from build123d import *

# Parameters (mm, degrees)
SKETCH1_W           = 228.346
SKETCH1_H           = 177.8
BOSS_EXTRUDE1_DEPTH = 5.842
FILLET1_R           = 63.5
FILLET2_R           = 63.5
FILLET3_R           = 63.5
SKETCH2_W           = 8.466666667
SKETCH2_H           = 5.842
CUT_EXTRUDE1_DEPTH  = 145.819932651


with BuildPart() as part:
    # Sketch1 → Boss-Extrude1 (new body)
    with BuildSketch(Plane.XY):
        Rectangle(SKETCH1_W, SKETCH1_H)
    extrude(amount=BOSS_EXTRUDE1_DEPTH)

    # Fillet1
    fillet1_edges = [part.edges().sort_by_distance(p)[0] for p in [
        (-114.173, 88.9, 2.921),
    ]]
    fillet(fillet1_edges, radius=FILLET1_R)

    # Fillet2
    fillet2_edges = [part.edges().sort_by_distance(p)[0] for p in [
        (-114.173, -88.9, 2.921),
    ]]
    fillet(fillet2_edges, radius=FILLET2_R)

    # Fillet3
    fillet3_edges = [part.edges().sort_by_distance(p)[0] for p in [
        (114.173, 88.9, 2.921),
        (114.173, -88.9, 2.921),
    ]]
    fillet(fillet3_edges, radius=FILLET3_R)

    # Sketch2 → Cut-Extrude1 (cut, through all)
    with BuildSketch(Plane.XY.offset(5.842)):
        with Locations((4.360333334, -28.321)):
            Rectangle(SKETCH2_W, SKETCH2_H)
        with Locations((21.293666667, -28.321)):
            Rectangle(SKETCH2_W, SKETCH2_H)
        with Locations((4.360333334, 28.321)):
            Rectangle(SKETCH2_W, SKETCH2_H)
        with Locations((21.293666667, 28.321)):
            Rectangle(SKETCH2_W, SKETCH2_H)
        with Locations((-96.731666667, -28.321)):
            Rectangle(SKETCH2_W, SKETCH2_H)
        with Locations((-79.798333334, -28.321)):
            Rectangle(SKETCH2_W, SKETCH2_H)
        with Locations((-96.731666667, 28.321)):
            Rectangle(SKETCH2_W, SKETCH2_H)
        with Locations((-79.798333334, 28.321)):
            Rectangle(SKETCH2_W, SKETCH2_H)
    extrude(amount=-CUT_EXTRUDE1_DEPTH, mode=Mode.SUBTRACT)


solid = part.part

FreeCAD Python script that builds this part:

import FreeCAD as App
import Part
import Sketcher

V = App.Vector
Q = App.Units.Quantity


def edges_at(feature, points):
    """Names of the edges that pass closest to the given points."""
    edges = feature.Shape.Edges
    near = lambda p: min(range(len(edges)), key=lambda i: edges[i].distToShape(Part.Vertex(*p))[0])
    return sorted({f"Edge{near(p) + 1}" for p in points})

doc = App.newDocument("Part")
body = doc.addObject("PartDesign::Body", "Body")

# Sketch on XY plane
sketch1 = doc.addObject("Sketcher::SketchObject", "Sketch")
body.addObject(sketch1)
sketch1.AttachmentSupport = (doc.XY_Plane, [""])
sketch1.MapMode = "FlatFace"
sketch1.addGeometry(Part.LineSegment(V(-114.173, 88.9, 0), V(-114.173, -88.9, 0)), False)
sketch1.addGeometry(Part.LineSegment(V(-114.173, -88.9, 0), V(114.173, -88.9, 0)), False)
sketch1.addGeometry(Part.LineSegment(V(114.173, -88.9, 0), V(114.173, 88.9, 0)), False)
sketch1.addGeometry(Part.LineSegment(V(114.173, 88.9, 0), V(-114.173, 88.9, 0)), False)
sketch1.addConstraint(Sketcher.Constraint("Coincident", 0, 2, 1, 1))
sketch1.addConstraint(Sketcher.Constraint("Coincident", 1, 2, 2, 1))
sketch1.addConstraint(Sketcher.Constraint("Coincident", 2, 2, 3, 1))
sketch1.addConstraint(Sketcher.Constraint("Coincident", 3, 2, 0, 1))
sketch1.addConstraint(Sketcher.Constraint("Vertical", 0))
sketch1.addConstraint(Sketcher.Constraint("Horizontal", 1))
sketch1.addConstraint(Sketcher.Constraint("Vertical", 2))
sketch1.addConstraint(Sketcher.Constraint("Horizontal", 3))
sketch1.addConstraint(Sketcher.Constraint("Symmetric", 0, 2, 2, 2, -1, 1))
sketch1.addConstraint(Sketcher.Constraint("DistanceY", 0, 2, 0, 1, Q("7 in")))
sketch1.addConstraint(Sketcher.Constraint("DistanceX", 1, 1, 1, 2, Q("8.99 in")))
pad1 = doc.addObject("PartDesign::Pad", "Pad")
body.addObject(pad1)
pad1.Profile = sketch1
pad1.Length = Q("0.23 in")
doc.recompute()

fillet = doc.addObject("PartDesign::Fillet", "Fillet")
body.addObject(fillet)
fillet.Base = (pad1, edges_at(pad1, [(-114.173, 88.9, 2.921)]))
fillet.Radius = Q("2.5 in")
doc.recompute()

fillet2 = doc.addObject("PartDesign::Fillet", "Fillet001")
body.addObject(fillet2)
fillet2.Base = (fillet, edges_at(fillet, [(-114.173, -88.9, 2.921)]))
fillet2.Radius = Q("2.5 in")
doc.recompute()

fillet3 = doc.addObject("PartDesign::Fillet", "Fillet002")
body.addObject(fillet3)
fillet3.Base = (fillet2, edges_at(fillet2, [(114.173, 88.9, 2.921), (114.173, -88.9, 2.921)]))
fillet3.Radius = Q("2.5 in")

# Sketch on XY plane
sketch2 = doc.addObject("Sketcher::SketchObject", "Sketch001")
body.addObject(sketch2)
sketch2.AttachmentSupport = (doc.XY_Plane, [""])
sketch2.MapMode = "FlatFace"
sketch2.AttachmentOffset = App.Placement(V(0, 0, 0.23 * 25.4), App.Rotation())
sketch2.addGeometry(Part.LineSegment(V(0.127, -25.4, 0), V(0.127, -31.242, 0)), False)
sketch2.addGeometry(Part.LineSegment(V(0.127, -31.242, 0), V(8.593667, -31.242, 0)), False)
sketch2.addGeometry(Part.LineSegment(V(8.593667, -31.242, 0), V(8.593667, -25.4, 0)), False)
sketch2.addGeometry(Part.LineSegment(V(8.593667, -25.4, 0), V(0.127, -25.4, 0)), False)
sketch2.addGeometry(Part.LineSegment(V(17.060333, -25.4, 0), V(17.060333, -31.242, 0)), False)
sketch2.addGeometry(Part.LineSegment(V(17.060333, -31.242, 0), V(25.527, -31.242, 0)), False)
sketch2.addGeometry(Part.LineSegment(V(25.527, -31.242, 0), V(25.527, -25.4, 0)), False)
sketch2.addGeometry(Part.LineSegment(V(25.527, -25.4, 0), V(17.060333, -25.4, 0)), False)
sketch2.addGeometry(Part.LineSegment(V(0.127, 31.242, 0), V(0.127, 25.4, 0)), False)
sketch2.addGeometry(Part.LineSegment(V(0.127, 25.4, 0), V(8.593667, 25.4, 0)), False)
sketch2.addGeometry(Part.LineSegment(V(8.593667, 25.4, 0), V(8.593667, 31.242, 0)), False)
sketch2.addGeometry(Part.LineSegment(V(8.593667, 31.242, 0), V(0.127, 31.242, 0)), False)
sketch2.addGeometry(Part.LineSegment(V(17.060333, 31.242, 0), V(17.060333, 25.4, 0)), False)
sketch2.addGeometry(Part.LineSegment(V(17.060333, 25.4, 0), V(25.527, 25.4, 0)), False)
sketch2.addGeometry(Part.LineSegment(V(25.527, 25.4, 0), V(25.527, 31.242, 0)), False)
sketch2.addGeometry(Part.LineSegment(V(25.527, 31.242, 0), V(17.060333, 31.242, 0)), False)
sketch2.addGeometry(Part.LineSegment(V(-100.965, -25.4, 0), V(-100.965, -31.242, 0)), False)
sketch2.addGeometry(Part.LineSegment(V(-100.965, -31.242, 0), V(-92.498333, -31.242, 0)), False)
sketch2.addGeometry(Part.LineSegment(V(-92.498333, -31.242, 0), V(-92.498333, -25.4, 0)), False)
sketch2.addGeometry(Part.LineSegment(V(-92.498333, -25.4, 0), V(-100.965, -25.4, 0)), False)
sketch2.addGeometry(Part.LineSegment(V(-84.031667, -25.4, 0), V(-84.031667, -31.242, 0)), False)
sketch2.addGeometry(Part.LineSegment(V(-84.031667, -31.242, 0), V(-75.565, -31.242, 0)), False)
sketch2.addGeometry(Part.LineSegment(V(-75.565, -31.242, 0), V(-75.565, -25.4, 0)), False)
sketch2.addGeometry(Part.LineSegment(V(-75.565, -25.4, 0), V(-84.031667, -25.4, 0)), False)
sketch2.addGeometry(Part.LineSegment(V(-100.965, 31.242, 0), V(-100.965, 25.4, 0)), False)
sketch2.addGeometry(Part.LineSegment(V(-100.965, 25.4, 0), V(-92.498333, 25.4, 0)), False)
sketch2.addGeometry(Part.LineSegment(V(-92.498333, 25.4, 0), V(-92.498333, 31.242, 0)), False)
sketch2.addGeometry(Part.LineSegment(V(-92.498333, 31.242, 0), V(-100.965, 31.242, 0)), False)
sketch2.addGeometry(Part.LineSegment(V(-84.031667, 31.242, 0), V(-84.031667, 25.4, 0)), False)
sketch2.addGeometry(Part.LineSegment(V(-84.031667, 25.4, 0), V(-75.565, 25.4, 0)), False)
sketch2.addGeometry(Part.LineSegment(V(-75.565, 25.4, 0), V(-75.565, 31.242, 0)), False)
sketch2.addGeometry(Part.LineSegment(V(-75.565, 31.242, 0), V(-84.031667, 31.242, 0)), False)
sketch2.addConstraint(Sketcher.Constraint("Coincident", 0, 2, 1, 1))
sketch2.addConstraint(Sketcher.Constraint("Coincident", 1, 2, 2, 1))
sketch2.addConstraint(Sketcher.Constraint("Coincident", 2, 2, 3, 1))
sketch2.addConstraint(Sketcher.Constraint("Coincident", 3, 2, 0, 1))
sketch2.addConstraint(Sketcher.Constraint("Coincident", 4, 2, 5, 1))
sketch2.addConstraint(Sketcher.Constraint("Coincident", 5, 2, 6, 1))
sketch2.addConstraint(Sketcher.Constraint("Coincident", 6, 2, 7, 1))
sketch2.addConstraint(Sketcher.Constraint("Coincident", 7, 2, 4, 1))
sketch2.addConstraint(Sketcher.Constraint("Coincident", 8, 2, 9, 1))
sketch2.addConstraint(Sketcher.Constraint("Coincident", 9, 2, 10, 1))
sketch2.addConstraint(Sketcher.Constraint("Coincident", 10, 2, 11, 1))
sketch2.addConstraint(Sketcher.Constraint("Coincident", 11, 2, 8, 1))
sketch2.addConstraint(Sketcher.Constraint("Coincident", 12, 2, 13, 1))
sketch2.addConstraint(Sketcher.Constraint("Coincident", 13, 2, 14, 1))
sketch2.addConstraint(Sketcher.Constraint("Coincident", 14, 2, 15, 1))
sketch2.addConstraint(Sketcher.Constraint("Coincident", 15, 2, 12, 1))
sketch2.addConstraint(Sketcher.Constraint("Coincident", 16, 2, 17, 1))
sketch2.addConstraint(Sketcher.Constraint("Coincident", 17, 2, 18, 1))
sketch2.addConstraint(Sketcher.Constraint("Coincident", 18, 2, 19, 1))
sketch2.addConstraint(Sketcher.Constraint("Coincident", 19, 2, 16, 1))
sketch2.addConstraint(Sketcher.Constraint("Coincident", 20, 2, 21, 1))
sketch2.addConstraint(Sketcher.Constraint("Coincident", 21, 2, 22, 1))
sketch2.addConstraint(Sketcher.Constraint("Coincident", 22, 2, 23, 1))
sketch2.addConstraint(Sketcher.Constraint("Coincident", 23, 2, 20, 1))
sketch2.addConstraint(Sketcher.Constraint("Coincident", 24, 2, 25, 1))
sketch2.addConstraint(Sketcher.Constraint("Coincident", 25, 2, 26, 1))
sketch2.addConstraint(Sketcher.Constraint("Coincident", 26, 2, 27, 1))
sketch2.addConstraint(Sketcher.Constraint("Coincident", 27, 2, 24, 1))
sketch2.addConstraint(Sketcher.Constraint("Coincident", 28, 2, 29, 1))
sketch2.addConstraint(Sketcher.Constraint("Coincident", 29, 2, 30, 1))
sketch2.addConstraint(Sketcher.Constraint("Coincident", 30, 2, 31, 1))
sketch2.addConstraint(Sketcher.Constraint("Coincident", 31, 2, 28, 1))
sketch2.addConstraint(Sketcher.Constraint("Vertical", 0))
sketch2.addConstraint(Sketcher.Constraint("Horizontal", 1))
sketch2.addConstraint(Sketcher.Constraint("Vertical", 2))
sketch2.addConstraint(Sketcher.Constraint("Horizontal", 3))
sketch2.addConstraint(Sketcher.Constraint("Vertical", 4))
sketch2.addConstraint(Sketcher.Constraint("Horizontal", 5))
sketch2.addConstraint(Sketcher.Constraint("Vertical", 6))
sketch2.addConstraint(Sketcher.Constraint("Horizontal", 7))
sketch2.addConstraint(Sketcher.Constraint("Vertical", 8))
sketch2.addConstraint(Sketcher.Constraint("Horizontal", 9))
sketch2.addConstraint(Sketcher.Constraint("Vertical", 10))
sketch2.addConstraint(Sketcher.Constraint("Horizontal", 11))
sketch2.addConstraint(Sketcher.Constraint("Vertical", 12))
sketch2.addConstraint(Sketcher.Constraint("Horizontal", 13))
sketch2.addConstraint(Sketcher.Constraint("Vertical", 14))
sketch2.addConstraint(Sketcher.Constraint("Horizontal", 15))
sketch2.addConstraint(Sketcher.Constraint("Vertical", 16))
sketch2.addConstraint(Sketcher.Constraint("Horizontal", 17))
sketch2.addConstraint(Sketcher.Constraint("Vertical", 18))
sketch2.addConstraint(Sketcher.Constraint("Horizontal", 19))
sketch2.addConstraint(Sketcher.Constraint("Vertical", 20))
sketch2.addConstraint(Sketcher.Constraint("Horizontal", 21))
sketch2.addConstraint(Sketcher.Constraint("Vertical", 22))
sketch2.addConstraint(Sketcher.Constraint("Horizontal", 23))
sketch2.addConstraint(Sketcher.Constraint("Vertical", 24))
sketch2.addConstraint(Sketcher.Constraint("Horizontal", 25))
sketch2.addConstraint(Sketcher.Constraint("Vertical", 26))
sketch2.addConstraint(Sketcher.Constraint("Horizontal", 27))
sketch2.addConstraint(Sketcher.Constraint("Vertical", 28))
sketch2.addConstraint(Sketcher.Constraint("Horizontal", 29))
sketch2.addConstraint(Sketcher.Constraint("Vertical", 30))
sketch2.addConstraint(Sketcher.Constraint("Horizontal", 31))
sketch2.addConstraint(Sketcher.Constraint("Symmetric", 3, 2, 8, 2, -1))
sketch2.addConstraint(Sketcher.Constraint("Symmetric", 1, 2, 10, 2, -1))
sketch2.addConstraint(Sketcher.Constraint("Symmetric", 7, 2, 12, 2, -1))
sketch2.addConstraint(Sketcher.Constraint("Symmetric", 5, 2, 14, 2, -1))
sketch2.addConstraint(Sketcher.Constraint("Symmetric", 19, 2, 24, 2, -1))
sketch2.addConstraint(Sketcher.Constraint("Symmetric", 17, 2, 26, 2, -1))
sketch2.addConstraint(Sketcher.Constraint("Symmetric", 23, 2, 28, 2, -1))
sketch2.addConstraint(Sketcher.Constraint("Symmetric", 21, 2, 30, 2, -1))
sketch2.addConstraint(Sketcher.Constraint("Horizontal", 1, 2, 4, 2))
sketch2.addConstraint(Sketcher.Constraint("Horizontal", 3, 2, 6, 2))
sketch2.addConstraint(Sketcher.Constraint("Horizontal", 5, 2, 16, 2))
sketch2.addConstraint(Sketcher.Constraint("Horizontal", 7, 2, 18, 2))
sketch2.addConstraint(Sketcher.Constraint("Horizontal", 17, 2, 20, 2))
sketch2.addConstraint(Sketcher.Constraint("Horizontal", 19, 2, 22, 2))
sketch2.addConstraint(Sketcher.Constraint("Equal", 3, 5))
sketch2.addConstraint(Sketcher.Constraint("Equal", 15, 17))
sketch2.addConstraint(Sketcher.Constraint("Equal", 19, 21))
sketch2.addConstraint(Sketcher.Constraint("DistanceY", 2, 2, -1, 1, Q("1 in")))
sketch2.addConstraint(Sketcher.Constraint("DistanceX", 0, 2, 5, 2, Q("1 in")))
sketch2.addConstraint(Sketcher.Constraint("DistanceX", 16, 2, 21, 2, Q("1 in")))
sketch2.addConstraint(Sketcher.Constraint("DistanceY", 0, 2, 0, 1, Q("0.23 in")))
sketch2.addConstraint(Sketcher.Constraint("DistanceX", 16, 2, 0, 2, Q("3.98 in")))
sketch2.addConstraint(Sketcher.Constraint("DistanceX", -1, 1, 0, 2, Q("0.005 in")))
sketch2.addConstraint(Sketcher.Constraint("DistanceX", 1, 1, 1, 2, 8.466667))
pocket1 = doc.addObject("PartDesign::Pocket", "Pocket")
body.addObject(pocket1)
pocket1.Profile = sketch2
pocket1.Type = "ThroughAll"

doc.recompute()
